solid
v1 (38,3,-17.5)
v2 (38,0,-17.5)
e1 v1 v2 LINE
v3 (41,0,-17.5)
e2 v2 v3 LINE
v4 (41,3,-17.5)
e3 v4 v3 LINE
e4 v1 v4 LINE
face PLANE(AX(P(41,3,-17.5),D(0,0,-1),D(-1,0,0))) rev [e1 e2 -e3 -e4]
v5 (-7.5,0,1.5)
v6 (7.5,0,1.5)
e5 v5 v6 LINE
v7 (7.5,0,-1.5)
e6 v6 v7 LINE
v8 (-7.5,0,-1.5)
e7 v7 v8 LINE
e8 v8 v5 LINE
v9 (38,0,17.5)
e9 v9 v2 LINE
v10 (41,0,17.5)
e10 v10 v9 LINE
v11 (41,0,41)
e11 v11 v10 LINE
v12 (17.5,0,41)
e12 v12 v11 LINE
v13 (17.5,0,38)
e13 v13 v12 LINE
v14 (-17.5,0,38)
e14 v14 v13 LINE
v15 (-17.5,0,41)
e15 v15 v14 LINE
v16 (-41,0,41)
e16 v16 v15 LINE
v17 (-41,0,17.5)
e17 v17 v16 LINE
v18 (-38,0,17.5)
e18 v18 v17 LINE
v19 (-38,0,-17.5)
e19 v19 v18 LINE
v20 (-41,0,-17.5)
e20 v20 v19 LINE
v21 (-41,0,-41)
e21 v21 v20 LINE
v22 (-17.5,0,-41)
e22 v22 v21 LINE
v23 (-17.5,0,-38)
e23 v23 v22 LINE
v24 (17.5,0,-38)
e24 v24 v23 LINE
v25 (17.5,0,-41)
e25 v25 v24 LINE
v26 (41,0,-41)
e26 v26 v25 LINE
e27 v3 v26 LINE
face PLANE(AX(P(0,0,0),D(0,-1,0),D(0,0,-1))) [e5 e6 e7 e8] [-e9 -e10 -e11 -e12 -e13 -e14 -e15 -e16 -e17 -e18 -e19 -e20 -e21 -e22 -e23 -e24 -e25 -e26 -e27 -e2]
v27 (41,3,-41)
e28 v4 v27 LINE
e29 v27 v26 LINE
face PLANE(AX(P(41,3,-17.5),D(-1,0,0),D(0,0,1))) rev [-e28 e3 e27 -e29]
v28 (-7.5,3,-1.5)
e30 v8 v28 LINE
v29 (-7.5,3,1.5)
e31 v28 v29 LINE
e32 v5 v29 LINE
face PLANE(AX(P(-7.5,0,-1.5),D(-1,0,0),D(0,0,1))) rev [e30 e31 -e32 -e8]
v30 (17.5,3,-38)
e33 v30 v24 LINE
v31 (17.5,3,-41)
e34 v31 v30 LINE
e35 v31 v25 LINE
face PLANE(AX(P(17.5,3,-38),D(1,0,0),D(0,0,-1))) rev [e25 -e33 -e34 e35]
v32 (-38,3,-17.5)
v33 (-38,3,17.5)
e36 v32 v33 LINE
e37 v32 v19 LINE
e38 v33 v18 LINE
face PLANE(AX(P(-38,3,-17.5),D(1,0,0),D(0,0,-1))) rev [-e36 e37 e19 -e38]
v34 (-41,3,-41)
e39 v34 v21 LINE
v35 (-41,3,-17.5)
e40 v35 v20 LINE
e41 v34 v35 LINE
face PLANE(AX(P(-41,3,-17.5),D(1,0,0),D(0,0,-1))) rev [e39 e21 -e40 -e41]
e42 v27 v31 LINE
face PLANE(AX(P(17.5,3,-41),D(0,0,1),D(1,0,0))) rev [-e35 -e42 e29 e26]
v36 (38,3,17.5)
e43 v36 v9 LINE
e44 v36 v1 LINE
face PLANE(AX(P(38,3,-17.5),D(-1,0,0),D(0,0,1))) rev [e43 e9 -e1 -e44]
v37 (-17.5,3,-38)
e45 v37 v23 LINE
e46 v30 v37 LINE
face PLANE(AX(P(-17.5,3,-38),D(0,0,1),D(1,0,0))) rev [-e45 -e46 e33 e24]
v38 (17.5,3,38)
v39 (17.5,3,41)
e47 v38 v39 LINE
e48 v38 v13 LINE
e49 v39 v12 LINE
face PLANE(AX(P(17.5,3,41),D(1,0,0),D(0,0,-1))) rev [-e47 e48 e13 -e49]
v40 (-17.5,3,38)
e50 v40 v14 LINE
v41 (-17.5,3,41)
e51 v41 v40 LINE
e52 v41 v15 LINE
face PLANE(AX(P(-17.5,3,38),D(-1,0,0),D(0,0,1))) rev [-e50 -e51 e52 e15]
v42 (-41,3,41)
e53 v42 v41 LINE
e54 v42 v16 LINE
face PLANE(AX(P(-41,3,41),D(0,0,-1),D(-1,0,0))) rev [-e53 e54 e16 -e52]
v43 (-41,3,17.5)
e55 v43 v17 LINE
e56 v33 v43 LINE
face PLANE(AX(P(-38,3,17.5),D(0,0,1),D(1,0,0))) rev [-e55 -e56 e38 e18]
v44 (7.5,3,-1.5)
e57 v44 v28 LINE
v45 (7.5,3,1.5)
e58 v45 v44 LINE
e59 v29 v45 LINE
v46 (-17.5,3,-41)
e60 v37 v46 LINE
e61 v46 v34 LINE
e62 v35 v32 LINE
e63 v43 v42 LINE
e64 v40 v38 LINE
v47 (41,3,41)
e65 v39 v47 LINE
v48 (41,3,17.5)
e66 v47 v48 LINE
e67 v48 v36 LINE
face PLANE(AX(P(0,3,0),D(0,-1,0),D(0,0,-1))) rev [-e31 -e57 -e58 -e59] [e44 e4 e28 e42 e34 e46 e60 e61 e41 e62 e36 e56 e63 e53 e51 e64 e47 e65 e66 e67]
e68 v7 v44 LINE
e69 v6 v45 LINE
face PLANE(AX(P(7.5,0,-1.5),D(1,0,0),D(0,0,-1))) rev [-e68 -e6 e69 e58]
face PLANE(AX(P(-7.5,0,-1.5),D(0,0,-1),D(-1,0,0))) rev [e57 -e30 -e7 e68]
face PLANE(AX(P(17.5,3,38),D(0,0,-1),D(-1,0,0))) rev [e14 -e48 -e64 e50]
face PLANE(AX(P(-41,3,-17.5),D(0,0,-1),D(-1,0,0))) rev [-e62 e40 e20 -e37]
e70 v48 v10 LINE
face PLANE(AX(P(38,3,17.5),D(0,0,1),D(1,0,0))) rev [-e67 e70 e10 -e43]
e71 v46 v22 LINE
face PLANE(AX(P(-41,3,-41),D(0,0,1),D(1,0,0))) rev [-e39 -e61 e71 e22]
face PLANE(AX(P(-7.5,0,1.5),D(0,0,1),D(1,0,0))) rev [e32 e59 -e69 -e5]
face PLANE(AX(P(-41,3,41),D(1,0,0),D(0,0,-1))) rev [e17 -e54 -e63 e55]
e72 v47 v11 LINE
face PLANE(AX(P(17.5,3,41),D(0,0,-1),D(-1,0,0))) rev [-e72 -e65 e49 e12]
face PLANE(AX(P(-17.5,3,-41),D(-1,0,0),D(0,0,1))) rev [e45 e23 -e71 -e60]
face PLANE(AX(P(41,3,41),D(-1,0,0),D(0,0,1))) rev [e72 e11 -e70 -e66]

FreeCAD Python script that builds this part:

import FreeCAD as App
import Part
import Sketcher
from FreeCAD import Vector


def add_polygon(sketch, points):
    """Adds a closed chain of lines whose ends are joined by coincident constraints."""
    first, n = sketch.GeometryCount, len(points)
    for a, b in zip(points, points[1:] + points[:1]):
        sketch.addGeometry(Part.LineSegment(App.Vector(*a, 0), App.Vector(*b, 0)), False)
    for i in range(n):
        sketch.addConstraint(Sketcher.Constraint("Coincident", first + i, 2, first + (i + 1) % n, 1))

doc = App.newDocument("Part")
params = doc.addObject("Spreadsheet::Sheet", "Params")
for row, (alias, value) in enumerate([
    ("sketch1_width", "35 mm"),
    ("sketch1_width2", "3 mm"),
    ("sketch1_width3", "23.5 mm"),
    ("pad1_length", "3 mm"),
    ("sketch2_width", "15 mm"),
    ("sketch2_height", "3 mm"),
    ("pocket1_length", "3 mm"),
], start=1):
    params.set(f"A{row}", alias)
    params.set(f"B{row}", "=" + value)
    params.setAlias(f"B{row}", alias)

body = doc.addObject("PartDesign::Body", "Body")

sketch1 = doc.addObject("Sketcher::SketchObject", "Sketch")
body.addObject(sketch1)
sketch1.AttachmentSupport = (doc.XZ_Plane, [""])
sketch1.MapMode = "FlatFace"
add_polygon(sketch1, [(-41, 41), (-17.5, 41), (-17.5, 38), (17.5, 38), (17.5, 41), (41, 41), (41, 17.5), (38, 17.5), (38, -17.5), (41, -17.5), (41, -41), (17.5, -41), (17.5, -38), (-17.5, -38), (-17.5, -41), (-41, -41), (-41, -17.5), (-38, -17.5), (-38, 17.5), (-41, 17.5)])
sketch1.addConstraint(Sketcher.Constraint("Horizontal", 0))
sketch1.addConstraint(Sketcher.Constraint("Vertical", 1))
sketch1.addConstraint(Sketcher.Constraint("Horizontal", 2))
sketch1.addConstraint(Sketcher.Constraint("Vertical", 3))
sketch1.addConstraint(Sketcher.Constraint("Horizontal", 4))
sketch1.addConstraint(Sketcher.Constraint("Vertical", 5))
sketch1.addConstraint(Sketcher.Constraint("Horizontal", 6))
sketch1.addConstraint(Sketcher.Constraint("Vertical", 7))
sketch1.addConstraint(Sketcher.Constraint("Horizontal", 8))
sketch1.addConstraint(Sketcher.Constraint("Vertical", 9))
sketch1.addConstraint(Sketcher.Constraint("Horizontal", 10))
sketch1.addConstraint(Sketcher.Constraint("Vertical", 11))
sketch1.addConstraint(Sketcher.Constraint("Horizontal", 12))
sketch1.addConstraint(Sketcher.Constraint("Vertical", 13))
sketch1.addConstraint(Sketcher.Constraint("Horizontal", 14))
sketch1.addConstraint(Sketcher.Constraint("Vertical", 15))
sketch1.addConstraint(Sketcher.Constraint("Horizontal", 16))
sketch1.addConstraint(Sketcher.Constraint("Vertical", 17))
sketch1.addConstraint(Sketcher.Constraint("Horizontal", 18))
sketch1.addConstraint(Sketcher.Constraint("Vertical", 19))
sketch1.addConstraint(Sketcher.Constraint("Symmetric", 0, 2, 10, 2, -1, 1))
sketch1.addConstraint(Sketcher.Constraint("Symmetric", 2, 2, 12, 2, -1, 1))
sketch1.addConstraint(Sketcher.Constraint("Symmetric", 4, 2, 14, 2, -1, 1))
sketch1.addConstraint(Sketcher.Constraint("Symmetric", 6, 2, 16, 2, -1, 1))
sketch1.addConstraint(Sketcher.Constraint("Symmetric", 8, 2, 18, 2, -1, 1))
sketch1.addConstraint(Sketcher.Constraint("Symmetric", 0, 2, 3, 2, -2))
sketch1.addConstraint(Sketcher.Constraint("Symmetric", 8, 2, 15, 2, -2))
sketch1.addConstraint(Sketcher.Constraint("Equal", 18, 1))
sketch1.addConstraint(Sketcher.Constraint("Equal", 14, 5))
sketch1.addConstraint(Sketcher.Constraint("Equal", 12, 7))
sketch1.addConstraint(Sketcher.Constraint("DistanceX", 2, 1, 2, 2, 35.0))
sketch1.addConstraint(Sketcher.Constraint("DistanceX", 6, 2, 6, 1, 3.0))
sketch1.addConstraint(Sketcher.Constraint("DistanceX", 0, 1, 0, 2, 23.5))
sketch1.setExpression("Constraints[50]", "Params.sketch1_width")
sketch1.setExpression("Constraints[51]", "Params.sketch1_width2")
sketch1.setExpression("Constraints[52]", "Params.sketch1_width3")
pad1 = doc.addObject("PartDesign::Pad", "Pad")
body.addObject(pad1)
pad1.Profile = sketch1
pad1.setExpression("Length", "Params.pad1_length")
pad1.Reversed = True

sketch2 = doc.addObject("Sketcher::SketchObject", "Sketch001")
body.addObject(sketch2)
sketch2.AttachmentSupport = (doc.XZ_Plane, [""])
sketch2.MapMode = "FlatFace"
sketch2.AttachmentOffset = App.Placement(Vector(0, 0, -3), App.Rotation())
add_polygon(sketch2, [(-7.5, -1.5), (-7.5, 1.5), (7.5, 1.5), (7.5, -1.5)])
sketch2.addConstraint(Sketcher.Constraint("Vertical", 0))
sketch2.addConstraint(Sketcher.Constraint("Horizontal", 1))
sketch2.addConstraint(Sketcher.Constraint("Vertical", 2))
sketch2.addConstraint(Sketcher.Constraint("Horizontal", 3))
sketch2.addConstraint(Sketcher.Constraint("Symmetric", 0, 2, 2, 2, -1, 1))
sketch2.addConstraint(Sketcher.Constraint("DistanceX", 1, 1, 1, 2, 15.0))
sketch2.addConstraint(Sketcher.Constraint("DistanceY", 0, 1, 0, 2, 3.0))
sketch2.setExpression("Constraints[9]", "Params.sketch2_width")
sketch2.setExpression("Constraints[10]", "Params.sketch2_height")
pocket1 = doc.addObject("PartDesign::Pocket", "Pocket")
body.addObject(pocket1)
pocket1.Profile = sketch2
pocket1.setExpression("Length", "Params.pocket1_length")
pocket1.Reversed = True

doc.recompute()
